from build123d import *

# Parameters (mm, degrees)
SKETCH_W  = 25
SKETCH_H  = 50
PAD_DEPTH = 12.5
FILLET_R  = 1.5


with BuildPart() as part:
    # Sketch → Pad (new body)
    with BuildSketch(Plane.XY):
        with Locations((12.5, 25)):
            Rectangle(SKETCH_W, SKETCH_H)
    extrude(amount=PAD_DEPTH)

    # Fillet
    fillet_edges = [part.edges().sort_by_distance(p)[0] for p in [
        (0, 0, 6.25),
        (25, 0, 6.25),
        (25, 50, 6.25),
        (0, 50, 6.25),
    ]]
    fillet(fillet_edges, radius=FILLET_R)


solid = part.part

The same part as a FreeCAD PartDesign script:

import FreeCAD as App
import Part
import Sketcher

V = App.Vector
Q = App.Units.Quantity


def edges_at(feature, points):
    """Names of the edges that pass closest to the given points."""
    edges = feature.Shape.Edges
    near = lambda p: min(range(len(edges)), key=lambda i: edges[i].distToShape(Part.Vertex(*p))[0])
    return sorted({f"Edge{near(p) + 1}" for p in points})

doc = App.newDocument("Part")
body = doc.addObject("PartDesign::Body", "Body")

# Sketch on XY plane
sketch1 = body.newObject("Sketcher::SketchObject", "Sketch")
sketch1.AttachmentSupport = (doc.getObject("XY_Plane"), [""])
sketch1.MapMode = "FlatFace"
sketch1.addGeometry([
    Part.LineSegment(V(0, 50, 0), V(0, 0, 0)),
    Part.LineSegment(V(0, 0, 0), V(25, 0, 0)),
    Part.LineSegment(V(25, 0, 0), V(25, 50, 0)),
    Part.LineSegment(V(25, 50, 0), V(0, 50, 0)),
], False)
sketch1.addConstraint([
    Sketcher.Constraint("Coincident", 0, 2, 1, 1),
    Sketcher.Constraint("Coincident", 1, 2, 2, 1),
    Sketcher.Constraint("Coincident", 2, 2, 3, 1),
    Sketcher.Constraint("Coincident", 3, 2, 0, 1),
    Sketcher.Constraint("Vertical", 0),
    Sketcher.Constraint("Horizontal", 1),
    Sketcher.Constraint("Vertical", 2),
    Sketcher.Constraint("Horizontal", 3),
    Sketcher.Constraint("Coincident", 0, 2, -1, 1),
    Sketcher.Constraint("DistanceX", 1, 1, 1, 2, Q("25 mm")),
    Sketcher.Constraint("DistanceY", 0, 2, 0, 1, Q("50 mm")),
])
pad1 = body.newObject("PartDesign::Pad", "Pad")
pad1.Profile = sketch1
pad1.Length = 12.5
doc.recompute()

fillet = body.newObject("PartDesign::Fillet", "Fillet")
fillet.Base = (pad1, edges_at(pad1, [
    (0, 0, 6.25),
    (25, 0, 6.25),
    (25, 50, 6.25),
    (0, 50, 6.25),
]))
fillet.Radius = 1.5

doc.recompute()
